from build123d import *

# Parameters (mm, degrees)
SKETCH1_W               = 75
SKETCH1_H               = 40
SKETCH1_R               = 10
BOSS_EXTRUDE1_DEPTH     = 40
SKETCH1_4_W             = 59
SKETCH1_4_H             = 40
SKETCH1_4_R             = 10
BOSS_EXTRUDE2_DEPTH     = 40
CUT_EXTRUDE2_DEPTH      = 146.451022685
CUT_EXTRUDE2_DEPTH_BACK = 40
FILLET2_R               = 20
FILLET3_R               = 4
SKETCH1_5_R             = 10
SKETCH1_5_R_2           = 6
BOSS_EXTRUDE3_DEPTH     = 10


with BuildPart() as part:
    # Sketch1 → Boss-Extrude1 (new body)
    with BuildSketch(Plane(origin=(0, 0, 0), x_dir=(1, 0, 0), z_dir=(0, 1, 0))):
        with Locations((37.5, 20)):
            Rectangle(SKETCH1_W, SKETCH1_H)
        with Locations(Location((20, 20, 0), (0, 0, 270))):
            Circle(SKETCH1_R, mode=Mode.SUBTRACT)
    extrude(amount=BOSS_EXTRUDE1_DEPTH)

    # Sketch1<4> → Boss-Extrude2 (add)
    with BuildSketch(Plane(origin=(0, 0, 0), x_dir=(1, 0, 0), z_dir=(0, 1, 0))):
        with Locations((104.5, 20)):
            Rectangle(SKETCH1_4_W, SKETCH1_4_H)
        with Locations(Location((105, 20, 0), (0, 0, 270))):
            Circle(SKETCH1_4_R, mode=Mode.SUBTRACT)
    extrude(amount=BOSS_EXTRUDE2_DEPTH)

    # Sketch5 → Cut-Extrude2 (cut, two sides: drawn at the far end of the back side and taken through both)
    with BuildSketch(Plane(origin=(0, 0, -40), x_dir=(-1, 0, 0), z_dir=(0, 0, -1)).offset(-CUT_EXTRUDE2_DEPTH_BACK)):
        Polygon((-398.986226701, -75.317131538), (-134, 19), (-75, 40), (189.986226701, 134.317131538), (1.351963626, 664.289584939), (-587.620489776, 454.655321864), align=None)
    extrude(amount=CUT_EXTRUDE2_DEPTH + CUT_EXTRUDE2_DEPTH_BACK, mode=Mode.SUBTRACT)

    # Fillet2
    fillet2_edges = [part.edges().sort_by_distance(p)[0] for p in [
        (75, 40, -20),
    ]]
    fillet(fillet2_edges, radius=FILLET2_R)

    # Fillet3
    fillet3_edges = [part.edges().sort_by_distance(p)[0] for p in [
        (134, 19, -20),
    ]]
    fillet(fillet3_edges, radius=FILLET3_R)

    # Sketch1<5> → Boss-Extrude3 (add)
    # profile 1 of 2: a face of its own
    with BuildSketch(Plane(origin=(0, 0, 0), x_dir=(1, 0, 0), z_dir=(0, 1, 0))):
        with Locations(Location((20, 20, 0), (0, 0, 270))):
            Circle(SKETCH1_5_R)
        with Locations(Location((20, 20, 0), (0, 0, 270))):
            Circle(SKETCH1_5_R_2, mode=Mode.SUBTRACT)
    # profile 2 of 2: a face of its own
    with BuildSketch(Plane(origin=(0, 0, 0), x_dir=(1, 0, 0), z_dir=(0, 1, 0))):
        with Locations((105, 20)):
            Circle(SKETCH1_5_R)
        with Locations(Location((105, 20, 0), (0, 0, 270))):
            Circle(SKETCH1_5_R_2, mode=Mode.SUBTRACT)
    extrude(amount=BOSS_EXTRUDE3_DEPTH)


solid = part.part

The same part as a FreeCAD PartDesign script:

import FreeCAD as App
import Part
import Sketcher


def edges_at(feature, points):
    """Names of the edges that pass closest to the given points."""
    edges = feature.Shape.Edges
    near = lambda p: min(range(len(edges)), key=lambda i: edges[i].distToShape(Part.Vertex(*p))[0])
    return sorted({f"Edge{near(p) + 1}" for p in points})

doc = App.newDocument("Part")
body = doc.addObject("PartDesign::Body", "Body")

sketch1 = body.newObject("Sketcher::SketchObject", "Sketch")
sketch1.AttachmentSupport = (doc.getObject("XZ_Plane"), [""])
sketch1.MapMode = "FlatFace"
sketch1.addGeometry([
    Part.LineSegment(App.Vector(0, -40, 0), App.Vector(0, 0, 0)),
    Part.LineSegment(App.Vector(0, 0, 0), App.Vector(75, 0, 0)),
    Part.LineSegment(App.Vector(75, 0, 0), App.Vector(75, -40, 0)),
    Part.LineSegment(App.Vector(75, -40, 0), App.Vector(0, -40, 0)),
    Part.Circle(App.Vector(20, -20, 0), App.Vector(0, 0, 1), 10),
], False)
sketch1.addConstraint([
    Sketcher.Constraint("Coincident", 0, 2, 1, 1),
    Sketcher.Constraint("Coincident", 1, 2, 2, 1),
    Sketcher.Constraint("Coincident", 2, 2, 3, 1),
    Sketcher.Constraint("Coincident", 3, 2, 0, 1),
    Sketcher.Constraint("Vertical", 0),
    Sketcher.Constraint("Horizontal", 1),
    Sketcher.Constraint("Vertical", 2),
    Sketcher.Constraint("Horizontal", 3),
    Sketcher.Constraint("Coincident", 0, 2, -1, 1),
    Sketcher.Constraint("Diameter", 4, 20.0),
    Sketcher.Constraint("DistanceX", 1, 1, 1, 2, 75.0),
    Sketcher.Constraint("DistanceY", 0, 1, 0, 2, 40.0),
    Sketcher.Constraint("DistanceX", -1, 1, 4, 3, 20.0),
    Sketcher.Constraint("DistanceY", 4, 3, -1, 1, 20.0),
])
pad1 = body.newObject("PartDesign::Pad", "Pad")
pad1.Profile = sketch1
pad1.Length = 40
pad1.Reversed = True

sketch2 = body.newObject("Sketcher::SketchObject", "Sketch001")
sketch2.AttachmentSupport = (doc.getObject("XZ_Plane"), [""])
sketch2.MapMode = "FlatFace"
sketch2.addGeometry([
    Part.LineSegment(App.Vector(75, -40, 0), App.Vector(75, 0, 0)),
    Part.LineSegment(App.Vector(75, 0, 0), App.Vector(134, 0, 0)),
    Part.LineSegment(App.Vector(134, 0, 0), App.Vector(134, -40, 0)),
    Part.LineSegment(App.Vector(134, -40, 0), App.Vector(75, -40, 0)),
    Part.Circle(App.Vector(105, -20, 0), App.Vector(0, 0, 1), 10),
], False)
sketch2.addConstraint([
    Sketcher.Constraint("Coincident", 0, 2, 1, 1),
    Sketcher.Constraint("Coincident", 1, 2, 2, 1),
    Sketcher.Constraint("Coincident", 2, 2, 3, 1),
    Sketcher.Constraint("Coincident", 3, 2, 0, 1),
    Sketcher.Constraint("Vertical", 0),
    Sketcher.Constraint("Horizontal", 1),
    Sketcher.Constraint("Vertical", 2),
    Sketcher.Constraint("Horizontal", 3),
    Sketcher.Constraint("PointOnObject", 0, 2, -1),
    Sketcher.Constraint("Diameter", 4, 20.0),
    Sketcher.Constraint("DistanceX", 1, 1, 1, 2, 59.0),
    Sketcher.Constraint("DistanceY", 0, 1, 0, 2, 40.0),
    Sketcher.Constraint("DistanceX", -1, 1, 4, 3, 105.0),
    Sketcher.Constraint("DistanceY", 4, 3, -1, 1, 20.0),
    Sketcher.Constraint("DistanceX", -1, 1, 0, 2, 75.0),
])
pad2 = body.newObject("PartDesign::Pad", "Pad001")
pad2.Profile = sketch2
pad2.Length = 40
pad2.Reversed = True

sketch3 = body.newObject("Sketcher::SketchObject", "Sketch002")
sketch3.AttachmentSupport = (doc.getObject("XY_Plane"), [""])
sketch3.MapMode = "FlatFace"
sketch3.AttachmentOffset = App.Placement(App.Vector(0, 0, -40), App.Rotation())
sketch3.addGeometry([
    Part.LineSegment(App.Vector(399, -75, 0), App.Vector(134, 19, 0)),
    Part.LineSegment(App.Vector(134, 19, 0), App.Vector(75, 40, 0)),
    Part.LineSegment(App.Vector(75, 40, 0), App.Vector(-190, 134, 0)),
    Part.LineSegment(App.Vector(-190, 134, 0), App.Vector(-1, 664, 0)),
    Part.LineSegment(App.Vector(-1, 664, 0), App.Vector(588, 455, 0)),
    Part.LineSegment(App.Vector(588, 455, 0), App.Vector(399, -75, 0)),
], False)
sketch3.addConstraint([
    Sketcher.Constraint("Coincident", 0, 2, 1, 1),
    Sketcher.Constraint("Coincident", 1, 2, 2, 1),
    Sketcher.Constraint("Coincident", 2, 2, 3, 1),
    Sketcher.Constraint("Coincident", 3, 2, 4, 1),
    Sketcher.Constraint("Coincident", 4, 2, 5, 1),
    Sketcher.Constraint("Coincident", 5, 2, 0, 1),
    Sketcher.Constraint("Parallel", 0, 1),
    Sketcher.Constraint("Parallel", 1, 2),
    Sketcher.Constraint("Perpendicular", 2, 3),
    Sketcher.Constraint("Perpendicular", 3, 4),
    Sketcher.Constraint("Perpendicular", 4, 5),
    Sketcher.Constraint("Equal", 0, 2),
    Sketcher.Constraint("DistanceX", -1, 1, 0, 2, 134.0),
    Sketcher.Constraint("DistanceY", -1, 1, 0, 2, 19.0),
    Sketcher.Constraint("DistanceX", -1, 1, 1, 2, 75.0),
    Sketcher.Constraint("DistanceY", -1, 1, 1, 2, 40.0),
    Sketcher.Constraint("DistanceY", -1, 1, 2, 2, 134.317132),
    Sketcher.Constraint("DistanceX", -1, 1, 4, 2, 587.62049),
])
pocket1 = body.newObject("PartDesign::Pocket", "Pocket")
pocket1.Profile = sketch3
pocket1.Type = "ThroughAll"
pocket1.Midplane = True
doc.recompute()

fillet = body.newObject("PartDesign::Fillet", "Fillet")
fillet.Base = (pocket1, edges_at(pocket1, [(75, 40, -20)]))
fillet.Radius = 20
doc.recompute()

fillet2 = body.newObject("PartDesign::Fillet", "Fillet001")
fillet2.Base = (fillet, edges_at(fillet, [(134, 19, -20)]))
fillet2.Radius = 4

sketch4 = body.newObject("Sketcher::SketchObject", "Sketch003")
sketch4.AttachmentSupport = (doc.getObject("XZ_Plane"), [""])
sketch4.MapMode = "FlatFace"
sketch4.addGeometry([
    Part.Circle(App.Vector(20, -20, 0), App.Vector(0, 0, 1), 10),
    Part.Circle(App.Vector(20, -20, 0), App.Vector(0, 0, 1), 6),
    Part.Circle(App.Vector(105, -20, 0), App.Vector(0, 0, 1), 10),
    Part.Circle(App.Vector(105, -20, 0), App.Vector(0, 0, 1), 6),
], False)
sketch4.addConstraint([
    Sketcher.Constraint("Coincident", 1, 3, 0, 3),
    Sketcher.Constraint("Coincident", 3, 3, 2, 3),
    Sketcher.Constraint("Equal", 0, 2),
    Sketcher.Constraint("Equal", 1, 3),
    Sketcher.Constraint("Horizontal", 1, 3, 2, 3),
    Sketcher.Constraint("Diameter", 0, 20.0),
    Sketcher.Constraint("Diameter", 1, 12.0),
    Sketcher.Constraint("DistanceX", -1, 1, 0, 3, 20.0),
    Sketcher.Constraint("DistanceY", 0, 3, -1, 1, 20.0),
    Sketcher.Constraint("DistanceX", -1, 1, 2, 3, 105.0),
])
pad3 = body.newObject("PartDesign::Pad", "Pad002")
pad3.Profile = sketch4
pad3.Length = 10
pad3.Reversed = True

doc.recompute()
